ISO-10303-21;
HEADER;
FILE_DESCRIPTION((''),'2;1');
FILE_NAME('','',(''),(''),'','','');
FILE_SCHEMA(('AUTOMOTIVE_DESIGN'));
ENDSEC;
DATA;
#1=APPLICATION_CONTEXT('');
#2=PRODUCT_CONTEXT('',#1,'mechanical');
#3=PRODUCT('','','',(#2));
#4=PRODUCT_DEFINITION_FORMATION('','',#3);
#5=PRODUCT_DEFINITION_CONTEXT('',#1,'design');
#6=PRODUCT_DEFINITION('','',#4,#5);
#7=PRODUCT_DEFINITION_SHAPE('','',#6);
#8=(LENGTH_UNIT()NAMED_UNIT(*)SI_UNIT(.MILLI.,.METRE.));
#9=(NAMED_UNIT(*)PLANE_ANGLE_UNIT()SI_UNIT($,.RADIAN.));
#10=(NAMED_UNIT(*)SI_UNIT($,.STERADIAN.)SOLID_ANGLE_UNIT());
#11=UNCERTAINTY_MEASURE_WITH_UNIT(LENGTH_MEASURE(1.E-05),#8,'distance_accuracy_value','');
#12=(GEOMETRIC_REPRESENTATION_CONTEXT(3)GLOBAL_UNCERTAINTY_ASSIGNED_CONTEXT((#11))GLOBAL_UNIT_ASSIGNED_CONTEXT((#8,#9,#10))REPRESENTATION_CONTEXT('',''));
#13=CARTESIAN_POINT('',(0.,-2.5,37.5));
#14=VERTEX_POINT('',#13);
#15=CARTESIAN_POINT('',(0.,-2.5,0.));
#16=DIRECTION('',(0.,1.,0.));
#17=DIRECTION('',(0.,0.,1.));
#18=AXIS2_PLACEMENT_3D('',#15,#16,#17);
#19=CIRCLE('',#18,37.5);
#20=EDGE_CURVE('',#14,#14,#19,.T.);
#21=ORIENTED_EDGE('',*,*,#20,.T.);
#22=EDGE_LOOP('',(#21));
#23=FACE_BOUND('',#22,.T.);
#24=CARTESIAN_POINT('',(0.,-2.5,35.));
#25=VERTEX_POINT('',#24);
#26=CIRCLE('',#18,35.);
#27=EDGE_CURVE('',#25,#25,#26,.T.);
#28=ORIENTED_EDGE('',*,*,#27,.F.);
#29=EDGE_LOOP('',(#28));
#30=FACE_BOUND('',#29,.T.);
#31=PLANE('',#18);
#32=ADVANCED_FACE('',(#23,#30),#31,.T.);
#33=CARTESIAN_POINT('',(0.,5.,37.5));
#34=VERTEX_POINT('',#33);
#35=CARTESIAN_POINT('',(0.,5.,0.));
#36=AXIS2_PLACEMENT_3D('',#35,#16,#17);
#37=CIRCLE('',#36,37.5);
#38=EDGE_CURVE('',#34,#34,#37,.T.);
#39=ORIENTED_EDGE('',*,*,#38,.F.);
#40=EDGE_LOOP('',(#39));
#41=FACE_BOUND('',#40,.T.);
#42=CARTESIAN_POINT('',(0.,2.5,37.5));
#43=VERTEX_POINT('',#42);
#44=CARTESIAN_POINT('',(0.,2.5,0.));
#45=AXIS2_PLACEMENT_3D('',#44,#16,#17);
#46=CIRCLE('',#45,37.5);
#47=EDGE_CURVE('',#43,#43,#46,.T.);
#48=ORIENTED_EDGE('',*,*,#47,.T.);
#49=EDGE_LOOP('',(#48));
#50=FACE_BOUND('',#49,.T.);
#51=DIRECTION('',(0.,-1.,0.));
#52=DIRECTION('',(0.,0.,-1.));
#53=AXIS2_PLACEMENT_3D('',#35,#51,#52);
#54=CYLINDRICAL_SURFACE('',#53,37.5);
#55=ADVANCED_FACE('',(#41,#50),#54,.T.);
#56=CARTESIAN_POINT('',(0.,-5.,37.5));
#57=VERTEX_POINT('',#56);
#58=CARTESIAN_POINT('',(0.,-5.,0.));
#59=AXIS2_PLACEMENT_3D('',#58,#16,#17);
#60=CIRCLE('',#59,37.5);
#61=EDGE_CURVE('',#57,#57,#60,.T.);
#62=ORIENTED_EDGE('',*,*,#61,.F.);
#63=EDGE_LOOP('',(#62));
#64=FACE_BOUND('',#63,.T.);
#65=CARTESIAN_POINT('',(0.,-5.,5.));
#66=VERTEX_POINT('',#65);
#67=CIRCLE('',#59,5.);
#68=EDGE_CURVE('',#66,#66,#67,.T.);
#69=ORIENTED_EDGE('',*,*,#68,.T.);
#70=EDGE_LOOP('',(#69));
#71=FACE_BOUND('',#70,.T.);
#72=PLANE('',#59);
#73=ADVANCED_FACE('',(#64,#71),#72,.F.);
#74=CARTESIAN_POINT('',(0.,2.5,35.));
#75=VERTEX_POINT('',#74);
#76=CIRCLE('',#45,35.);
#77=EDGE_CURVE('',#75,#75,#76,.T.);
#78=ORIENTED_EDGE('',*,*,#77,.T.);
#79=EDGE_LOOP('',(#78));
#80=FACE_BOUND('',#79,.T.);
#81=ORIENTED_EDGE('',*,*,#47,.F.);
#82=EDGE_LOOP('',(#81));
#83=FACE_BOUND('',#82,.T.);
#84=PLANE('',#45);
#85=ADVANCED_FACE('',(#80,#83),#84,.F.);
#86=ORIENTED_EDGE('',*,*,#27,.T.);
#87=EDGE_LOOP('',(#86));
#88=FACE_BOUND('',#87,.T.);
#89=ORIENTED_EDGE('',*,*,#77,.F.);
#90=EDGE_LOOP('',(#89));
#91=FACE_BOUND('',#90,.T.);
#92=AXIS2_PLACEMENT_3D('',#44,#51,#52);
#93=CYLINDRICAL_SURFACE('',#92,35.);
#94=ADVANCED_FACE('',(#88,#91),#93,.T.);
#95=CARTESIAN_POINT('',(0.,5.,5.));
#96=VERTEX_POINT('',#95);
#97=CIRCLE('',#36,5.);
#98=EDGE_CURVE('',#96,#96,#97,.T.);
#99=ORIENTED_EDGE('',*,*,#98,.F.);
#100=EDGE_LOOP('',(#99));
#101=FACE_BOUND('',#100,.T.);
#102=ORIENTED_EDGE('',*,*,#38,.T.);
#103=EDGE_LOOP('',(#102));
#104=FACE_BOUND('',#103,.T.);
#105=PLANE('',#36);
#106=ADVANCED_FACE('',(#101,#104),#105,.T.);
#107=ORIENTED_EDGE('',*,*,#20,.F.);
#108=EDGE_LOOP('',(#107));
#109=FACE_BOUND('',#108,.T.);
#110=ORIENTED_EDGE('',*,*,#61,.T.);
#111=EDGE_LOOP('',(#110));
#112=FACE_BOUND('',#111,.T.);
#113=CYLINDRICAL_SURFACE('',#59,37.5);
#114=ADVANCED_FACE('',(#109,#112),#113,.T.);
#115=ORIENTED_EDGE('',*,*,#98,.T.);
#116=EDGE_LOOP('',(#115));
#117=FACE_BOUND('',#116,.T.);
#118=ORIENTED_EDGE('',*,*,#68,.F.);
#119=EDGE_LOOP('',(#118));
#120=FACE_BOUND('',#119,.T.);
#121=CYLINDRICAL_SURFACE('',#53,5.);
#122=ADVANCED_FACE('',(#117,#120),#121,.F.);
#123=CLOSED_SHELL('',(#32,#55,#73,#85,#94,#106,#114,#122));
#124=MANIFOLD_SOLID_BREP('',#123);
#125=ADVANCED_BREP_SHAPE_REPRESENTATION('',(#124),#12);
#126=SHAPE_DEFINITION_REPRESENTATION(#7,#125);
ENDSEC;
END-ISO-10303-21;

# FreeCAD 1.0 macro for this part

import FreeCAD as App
import Part
import Sketcher
from FreeCAD import Vector
Q = App.Units.Quantity

doc = App.newDocument("Part")
body = doc.addObject("PartDesign::Body", "Body")

# Sketch on XZ plane
sketch1 = body.newObject("Sketcher::SketchObject", "Sketch")
sketch1.AttachmentSupport = (doc.getObject("XZ_Plane"), [""])
sketch1.MapMode = "FlatFace"
sketch1.addGeometry([
    Part.Circle(Vector(0, 0, 0), Vector(0, 0, 1), 35),
    Part.Circle(Vector(0, 0, 0), Vector(0, 0, 1), 8),
], False)
sketch1.addConstraint([
    Sketcher.Constraint("Coincident", 0, 3, -1, 1),
    Sketcher.Constraint("Coincident", 1, 3, -1, 1),
    Sketcher.Constraint("Diameter", 0, Q("70 mm")),
    Sketcher.Constraint("Diameter", 1, Q("15 mm")),
])
pad1 = body.newObject("PartDesign::Pad", "Pad")
pad1.Profile = sketch1
pad1.Length = 5
pad1.Midplane = True

# Sketch on XZ plane
sketch2 = body.newObject("Sketcher::SketchObject", "Sketch001")
sketch2.AttachmentSupport = (doc.getObject("XZ_Plane"), [""])
sketch2.MapMode = "FlatFace"
sketch2.AttachmentOffset = App.Placement(Vector(0, 0, -5), App.Rotation())
sketch2.addGeometry([
    Part.Circle(Vector(0, 0, 0), Vector(0, 0, 1), 38),
    Part.Circle(Vector(0, 0, 0), Vector(0, 0, 1), 8),
], False)
sketch2.addConstraint([
    Sketcher.Constraint("Coincident", 0, 3, -1, 1),
    Sketcher.Constraint("Coincident", 1, 3, -1, 1),
    Sketcher.Constraint("Diameter", 0, Q("75 mm")),
    Sketcher.Constraint("Diameter", 1, Q("15 mm")),
])
pad2 = body.newObject("PartDesign::Pad", "Pad001")
pad2.Profile = sketch2
pad2.Length = 2.5
body2 = doc.addObject("PartDesign::Body", "Body001")

# Sketch on XZ plane
sketch3 = body2.newObject("Sketcher::SketchObject", "Sketch002")
sketch3.AttachmentSupport = (doc.getObject("XZ_Plane001"), [""])
sketch3.MapMode = "FlatFace"
sketch3.AttachmentOffset = App.Placement(Vector(0, 0, 2.5), App.Rotation())
sketch3.addGeometry([
    Part.Circle(Vector(0, 0, 0), Vector(0, 0, 1), 38),
    Part.Circle(Vector(0, 0, 0), Vector(0, 0, 1), 35),
], False)
sketch3.addConstraint([
    Sketcher.Constraint("Coincident", 0, 3, -1, 1),
    Sketcher.Constraint("Coincident", 1, 3, -1, 1),
    Sketcher.Constraint("Diameter", 0, Q("75 mm")),
    Sketcher.Constraint("Diameter", 1, Q("70 mm")),
])
pad3 = body2.newObject("PartDesign::Pad", "Pad002")
pad3.Profile = sketch3
pad3.Length = 2.5
body.AllowCompound = True
doc.recompute()

boolean = body.newObject("PartDesign::Boolean", "Boolean")
boolean.Type = "Fuse"
boolean.addObjects([body2])

# Sketch on XZ plane
sketch4 = body.newObject("Sketcher::SketchObject", "Sketch003")
sketch4.AttachmentSupport = (doc.getObject("XZ_Plane"), [""])
sketch4.MapMode = "FlatFace"
sketch4.AttachmentOffset = App.Placement(Vector(0, 0, 5), App.Rotation())
sketch4.addGeometry([
    Part.Circle(Vector(0, 0, 0), Vector(0, 0, 1), 35),
    Part.Circle(Vector(0, 0, 0), Vector(0, 0, 1), 8),
], False)
sketch4.addConstraint([
    Sketcher.Constraint("Coincident", 0, 3, -1, 1),
    Sketcher.Constraint("Coincident", 1, 3, -1, 1),
    Sketcher.Constraint("Diameter", 0, Q("70 mm")),
    Sketcher.Constraint("Diameter", 1, Q("15 mm")),
])
pad4 = body.newObject("PartDesign::Pad", "Pad003")
pad4.Profile = sketch4
pad4.Length = 2.5
pad4.Reversed = True

# Sketch on XZ plane
sketch5 = body.newObject("Sketcher::SketchObject", "Sketch004")
sketch5.AttachmentSupport = (doc.getObject("XZ_Plane"), [""])
sketch5.MapMode = "FlatFace"
sketch5.addGeometry([
    Part.Circle(Vector(0, 0, 0), Vector(0, 0, 1), 8),
    Part.Circle(Vector(0, 0, 0), Vector(0, 0, 1), 5),
], False)
sketch5.addConstraint([
    Sketcher.Constraint("Coincident", 0, 3, -1, 1),
    Sketcher.Constraint("Coincident", 1, 3, -1, 1),
    Sketcher.Constraint("Diameter", 0, Q("15 mm")),
    Sketcher.Constraint("Diameter", 1, Q("10 mm")),
])
pad5 = body.newObject("PartDesign::Pad", "Pad004")
pad5.Profile = sketch5
pad5.Length = 10
pad5.Midplane = True

doc.recompute()
